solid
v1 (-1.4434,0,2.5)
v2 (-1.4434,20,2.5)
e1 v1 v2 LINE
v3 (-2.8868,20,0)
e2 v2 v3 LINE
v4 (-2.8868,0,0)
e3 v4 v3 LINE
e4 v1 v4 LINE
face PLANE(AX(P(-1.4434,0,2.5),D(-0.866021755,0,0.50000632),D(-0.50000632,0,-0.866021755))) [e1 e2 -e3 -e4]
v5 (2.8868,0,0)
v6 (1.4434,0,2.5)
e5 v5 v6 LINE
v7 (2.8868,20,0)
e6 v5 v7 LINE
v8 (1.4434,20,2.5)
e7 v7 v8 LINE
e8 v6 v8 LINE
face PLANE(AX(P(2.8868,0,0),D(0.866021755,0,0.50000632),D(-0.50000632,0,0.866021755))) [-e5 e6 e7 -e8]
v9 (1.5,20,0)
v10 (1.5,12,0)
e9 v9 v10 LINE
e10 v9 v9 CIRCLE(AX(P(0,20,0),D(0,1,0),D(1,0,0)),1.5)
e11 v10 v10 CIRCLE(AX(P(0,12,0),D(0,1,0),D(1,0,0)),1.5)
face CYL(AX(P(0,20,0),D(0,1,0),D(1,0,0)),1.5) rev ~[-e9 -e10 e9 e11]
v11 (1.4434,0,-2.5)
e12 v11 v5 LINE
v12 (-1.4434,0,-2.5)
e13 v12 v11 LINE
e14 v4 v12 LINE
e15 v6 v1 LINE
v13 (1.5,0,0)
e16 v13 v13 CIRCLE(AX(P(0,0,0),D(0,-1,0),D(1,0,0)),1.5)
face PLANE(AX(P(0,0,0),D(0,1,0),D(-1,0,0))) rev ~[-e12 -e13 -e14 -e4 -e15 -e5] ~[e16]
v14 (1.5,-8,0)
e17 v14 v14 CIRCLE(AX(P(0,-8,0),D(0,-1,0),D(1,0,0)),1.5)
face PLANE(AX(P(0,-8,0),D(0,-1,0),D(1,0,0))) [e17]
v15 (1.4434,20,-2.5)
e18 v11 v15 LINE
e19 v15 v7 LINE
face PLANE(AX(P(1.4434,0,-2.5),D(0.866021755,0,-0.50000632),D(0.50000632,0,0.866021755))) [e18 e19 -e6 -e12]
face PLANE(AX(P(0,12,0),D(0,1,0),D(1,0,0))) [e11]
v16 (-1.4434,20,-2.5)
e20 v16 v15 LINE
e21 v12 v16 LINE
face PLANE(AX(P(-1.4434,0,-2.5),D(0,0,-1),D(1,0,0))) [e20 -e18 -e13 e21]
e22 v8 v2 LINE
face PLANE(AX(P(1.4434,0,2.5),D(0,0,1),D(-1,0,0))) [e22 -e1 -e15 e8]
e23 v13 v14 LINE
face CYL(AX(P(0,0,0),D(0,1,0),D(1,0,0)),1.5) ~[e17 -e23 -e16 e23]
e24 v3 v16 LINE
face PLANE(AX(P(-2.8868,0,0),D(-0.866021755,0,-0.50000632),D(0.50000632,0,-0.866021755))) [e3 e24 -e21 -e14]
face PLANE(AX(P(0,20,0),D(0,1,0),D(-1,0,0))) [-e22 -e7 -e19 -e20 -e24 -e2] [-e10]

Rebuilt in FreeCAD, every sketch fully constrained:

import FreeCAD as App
import Part
import Sketcher
from FreeCAD import Vector
Q = App.Units.Quantity

doc = App.newDocument("Part")
body = doc.addObject("PartDesign::Body", "Body")

# Sketch on XZ plane
sketch1 = body.newObject("Sketcher::SketchObject", "Sketch")
sketch1.AttachmentSupport = (doc.getObject("XZ_Plane"), [""])
sketch1.MapMode = "FlatFace"
sketch1.addGeometry([
    Part.LineSegment(Vector(1.4, 2.5, 0), Vector(2.9, 0, 0)),  # 0
    Part.LineSegment(Vector(2.9, 0, 0), Vector(1.4, -2.5, 0)),  # 1
    Part.LineSegment(Vector(1.4, -2.5, 0), Vector(-1.4, -2.5, 0)),  # 2
    Part.LineSegment(Vector(-1.4, -2.5, 0), Vector(-2.9, 0, 0)),  # 3
    Part.LineSegment(Vector(-2.9, 0, 0), Vector(-1.4, 2.5, 0)),  # 4
    Part.LineSegment(Vector(-1.4, 2.5, 0), Vector(1.4, 2.5, 0)),  # 5
], False)
sketch1.addConstraint([
    Sketcher.Constraint("Coincident", 0, 2, 1, 1),
    Sketcher.Constraint("Coincident", 1, 2, 2, 1),
    Sketcher.Constraint("Coincident", 2, 2, 3, 1),
    Sketcher.Constraint("Coincident", 3, 2, 4, 1),
    Sketcher.Constraint("Coincident", 4, 2, 5, 1),
    Sketcher.Constraint("Coincident", 5, 2, 0, 1),
    Sketcher.Constraint("Horizontal", 2),
    Sketcher.Constraint("Horizontal", 5),
    Sketcher.Constraint("Symmetric", 0, 2, 3, 2, -1, 1),
    Sketcher.Constraint("Symmetric", 1, 2, 4, 2, -1, 1),
    Sketcher.Constraint("PointOnObject", 0, 2, -1),
    Sketcher.Constraint("Parallel", 0, 3),
    Sketcher.Constraint("Vertical", 2, 2, 4, 2),
    Sketcher.Constraint("DistanceY", 2, 2, 4, 2, 5.0),
    Sketcher.Constraint("Angle", 0, Q("-59.9996 deg")),
    Sketcher.Constraint("DistanceX", 2, 2, 2, 1, 2.8868),
])
pad1 = body.newObject("PartDesign::Pad", "Pad")
pad1.Profile = sketch1
pad1.Length = 20
pad1.Reversed = True

# Sketch on XZ plane
sketch2 = body.newObject("Sketcher::SketchObject", "Sketch001")
sketch2.AttachmentSupport = (doc.getObject("XZ_Plane"), [""])
sketch2.MapMode = "FlatFace"
sketch2.AttachmentOffset = App.Placement(Vector(0, 0, -20), App.Rotation())
sketch2.addGeometry(Part.Circle(Vector(0, 0, 0), Vector(0, 0, 1), 1.5), False)
sketch2.addConstraint([
    Sketcher.Constraint("Coincident", 0, 3, -1, 1),
    Sketcher.Constraint("Diameter", 0, 3.0),
])
pocket1 = body.newObject("PartDesign::Pocket", "Pocket")
pocket1.Profile = sketch2
pocket1.Length = 8
pocket1.Reversed = True

# Sketch on XZ plane
sketch3 = body.newObject("Sketcher::SketchObject", "Sketch002")
sketch3.AttachmentSupport = (doc.getObject("XZ_Plane"), [""])
sketch3.MapMode = "FlatFace"
sketch3.addGeometry(Part.Circle(Vector(0, 0, 0), Vector(0, 0, 1), 1.5), False)
sketch3.addConstraint([
    Sketcher.Constraint("Coincident", 0, 3, -1, 1),
    Sketcher.Constraint("Diameter", 0, 3.0),
])
pad2 = body.newObject("PartDesign::Pad", "Pad001")
pad2.Profile = sketch3
pad2.Length = 8

doc.recompute()
